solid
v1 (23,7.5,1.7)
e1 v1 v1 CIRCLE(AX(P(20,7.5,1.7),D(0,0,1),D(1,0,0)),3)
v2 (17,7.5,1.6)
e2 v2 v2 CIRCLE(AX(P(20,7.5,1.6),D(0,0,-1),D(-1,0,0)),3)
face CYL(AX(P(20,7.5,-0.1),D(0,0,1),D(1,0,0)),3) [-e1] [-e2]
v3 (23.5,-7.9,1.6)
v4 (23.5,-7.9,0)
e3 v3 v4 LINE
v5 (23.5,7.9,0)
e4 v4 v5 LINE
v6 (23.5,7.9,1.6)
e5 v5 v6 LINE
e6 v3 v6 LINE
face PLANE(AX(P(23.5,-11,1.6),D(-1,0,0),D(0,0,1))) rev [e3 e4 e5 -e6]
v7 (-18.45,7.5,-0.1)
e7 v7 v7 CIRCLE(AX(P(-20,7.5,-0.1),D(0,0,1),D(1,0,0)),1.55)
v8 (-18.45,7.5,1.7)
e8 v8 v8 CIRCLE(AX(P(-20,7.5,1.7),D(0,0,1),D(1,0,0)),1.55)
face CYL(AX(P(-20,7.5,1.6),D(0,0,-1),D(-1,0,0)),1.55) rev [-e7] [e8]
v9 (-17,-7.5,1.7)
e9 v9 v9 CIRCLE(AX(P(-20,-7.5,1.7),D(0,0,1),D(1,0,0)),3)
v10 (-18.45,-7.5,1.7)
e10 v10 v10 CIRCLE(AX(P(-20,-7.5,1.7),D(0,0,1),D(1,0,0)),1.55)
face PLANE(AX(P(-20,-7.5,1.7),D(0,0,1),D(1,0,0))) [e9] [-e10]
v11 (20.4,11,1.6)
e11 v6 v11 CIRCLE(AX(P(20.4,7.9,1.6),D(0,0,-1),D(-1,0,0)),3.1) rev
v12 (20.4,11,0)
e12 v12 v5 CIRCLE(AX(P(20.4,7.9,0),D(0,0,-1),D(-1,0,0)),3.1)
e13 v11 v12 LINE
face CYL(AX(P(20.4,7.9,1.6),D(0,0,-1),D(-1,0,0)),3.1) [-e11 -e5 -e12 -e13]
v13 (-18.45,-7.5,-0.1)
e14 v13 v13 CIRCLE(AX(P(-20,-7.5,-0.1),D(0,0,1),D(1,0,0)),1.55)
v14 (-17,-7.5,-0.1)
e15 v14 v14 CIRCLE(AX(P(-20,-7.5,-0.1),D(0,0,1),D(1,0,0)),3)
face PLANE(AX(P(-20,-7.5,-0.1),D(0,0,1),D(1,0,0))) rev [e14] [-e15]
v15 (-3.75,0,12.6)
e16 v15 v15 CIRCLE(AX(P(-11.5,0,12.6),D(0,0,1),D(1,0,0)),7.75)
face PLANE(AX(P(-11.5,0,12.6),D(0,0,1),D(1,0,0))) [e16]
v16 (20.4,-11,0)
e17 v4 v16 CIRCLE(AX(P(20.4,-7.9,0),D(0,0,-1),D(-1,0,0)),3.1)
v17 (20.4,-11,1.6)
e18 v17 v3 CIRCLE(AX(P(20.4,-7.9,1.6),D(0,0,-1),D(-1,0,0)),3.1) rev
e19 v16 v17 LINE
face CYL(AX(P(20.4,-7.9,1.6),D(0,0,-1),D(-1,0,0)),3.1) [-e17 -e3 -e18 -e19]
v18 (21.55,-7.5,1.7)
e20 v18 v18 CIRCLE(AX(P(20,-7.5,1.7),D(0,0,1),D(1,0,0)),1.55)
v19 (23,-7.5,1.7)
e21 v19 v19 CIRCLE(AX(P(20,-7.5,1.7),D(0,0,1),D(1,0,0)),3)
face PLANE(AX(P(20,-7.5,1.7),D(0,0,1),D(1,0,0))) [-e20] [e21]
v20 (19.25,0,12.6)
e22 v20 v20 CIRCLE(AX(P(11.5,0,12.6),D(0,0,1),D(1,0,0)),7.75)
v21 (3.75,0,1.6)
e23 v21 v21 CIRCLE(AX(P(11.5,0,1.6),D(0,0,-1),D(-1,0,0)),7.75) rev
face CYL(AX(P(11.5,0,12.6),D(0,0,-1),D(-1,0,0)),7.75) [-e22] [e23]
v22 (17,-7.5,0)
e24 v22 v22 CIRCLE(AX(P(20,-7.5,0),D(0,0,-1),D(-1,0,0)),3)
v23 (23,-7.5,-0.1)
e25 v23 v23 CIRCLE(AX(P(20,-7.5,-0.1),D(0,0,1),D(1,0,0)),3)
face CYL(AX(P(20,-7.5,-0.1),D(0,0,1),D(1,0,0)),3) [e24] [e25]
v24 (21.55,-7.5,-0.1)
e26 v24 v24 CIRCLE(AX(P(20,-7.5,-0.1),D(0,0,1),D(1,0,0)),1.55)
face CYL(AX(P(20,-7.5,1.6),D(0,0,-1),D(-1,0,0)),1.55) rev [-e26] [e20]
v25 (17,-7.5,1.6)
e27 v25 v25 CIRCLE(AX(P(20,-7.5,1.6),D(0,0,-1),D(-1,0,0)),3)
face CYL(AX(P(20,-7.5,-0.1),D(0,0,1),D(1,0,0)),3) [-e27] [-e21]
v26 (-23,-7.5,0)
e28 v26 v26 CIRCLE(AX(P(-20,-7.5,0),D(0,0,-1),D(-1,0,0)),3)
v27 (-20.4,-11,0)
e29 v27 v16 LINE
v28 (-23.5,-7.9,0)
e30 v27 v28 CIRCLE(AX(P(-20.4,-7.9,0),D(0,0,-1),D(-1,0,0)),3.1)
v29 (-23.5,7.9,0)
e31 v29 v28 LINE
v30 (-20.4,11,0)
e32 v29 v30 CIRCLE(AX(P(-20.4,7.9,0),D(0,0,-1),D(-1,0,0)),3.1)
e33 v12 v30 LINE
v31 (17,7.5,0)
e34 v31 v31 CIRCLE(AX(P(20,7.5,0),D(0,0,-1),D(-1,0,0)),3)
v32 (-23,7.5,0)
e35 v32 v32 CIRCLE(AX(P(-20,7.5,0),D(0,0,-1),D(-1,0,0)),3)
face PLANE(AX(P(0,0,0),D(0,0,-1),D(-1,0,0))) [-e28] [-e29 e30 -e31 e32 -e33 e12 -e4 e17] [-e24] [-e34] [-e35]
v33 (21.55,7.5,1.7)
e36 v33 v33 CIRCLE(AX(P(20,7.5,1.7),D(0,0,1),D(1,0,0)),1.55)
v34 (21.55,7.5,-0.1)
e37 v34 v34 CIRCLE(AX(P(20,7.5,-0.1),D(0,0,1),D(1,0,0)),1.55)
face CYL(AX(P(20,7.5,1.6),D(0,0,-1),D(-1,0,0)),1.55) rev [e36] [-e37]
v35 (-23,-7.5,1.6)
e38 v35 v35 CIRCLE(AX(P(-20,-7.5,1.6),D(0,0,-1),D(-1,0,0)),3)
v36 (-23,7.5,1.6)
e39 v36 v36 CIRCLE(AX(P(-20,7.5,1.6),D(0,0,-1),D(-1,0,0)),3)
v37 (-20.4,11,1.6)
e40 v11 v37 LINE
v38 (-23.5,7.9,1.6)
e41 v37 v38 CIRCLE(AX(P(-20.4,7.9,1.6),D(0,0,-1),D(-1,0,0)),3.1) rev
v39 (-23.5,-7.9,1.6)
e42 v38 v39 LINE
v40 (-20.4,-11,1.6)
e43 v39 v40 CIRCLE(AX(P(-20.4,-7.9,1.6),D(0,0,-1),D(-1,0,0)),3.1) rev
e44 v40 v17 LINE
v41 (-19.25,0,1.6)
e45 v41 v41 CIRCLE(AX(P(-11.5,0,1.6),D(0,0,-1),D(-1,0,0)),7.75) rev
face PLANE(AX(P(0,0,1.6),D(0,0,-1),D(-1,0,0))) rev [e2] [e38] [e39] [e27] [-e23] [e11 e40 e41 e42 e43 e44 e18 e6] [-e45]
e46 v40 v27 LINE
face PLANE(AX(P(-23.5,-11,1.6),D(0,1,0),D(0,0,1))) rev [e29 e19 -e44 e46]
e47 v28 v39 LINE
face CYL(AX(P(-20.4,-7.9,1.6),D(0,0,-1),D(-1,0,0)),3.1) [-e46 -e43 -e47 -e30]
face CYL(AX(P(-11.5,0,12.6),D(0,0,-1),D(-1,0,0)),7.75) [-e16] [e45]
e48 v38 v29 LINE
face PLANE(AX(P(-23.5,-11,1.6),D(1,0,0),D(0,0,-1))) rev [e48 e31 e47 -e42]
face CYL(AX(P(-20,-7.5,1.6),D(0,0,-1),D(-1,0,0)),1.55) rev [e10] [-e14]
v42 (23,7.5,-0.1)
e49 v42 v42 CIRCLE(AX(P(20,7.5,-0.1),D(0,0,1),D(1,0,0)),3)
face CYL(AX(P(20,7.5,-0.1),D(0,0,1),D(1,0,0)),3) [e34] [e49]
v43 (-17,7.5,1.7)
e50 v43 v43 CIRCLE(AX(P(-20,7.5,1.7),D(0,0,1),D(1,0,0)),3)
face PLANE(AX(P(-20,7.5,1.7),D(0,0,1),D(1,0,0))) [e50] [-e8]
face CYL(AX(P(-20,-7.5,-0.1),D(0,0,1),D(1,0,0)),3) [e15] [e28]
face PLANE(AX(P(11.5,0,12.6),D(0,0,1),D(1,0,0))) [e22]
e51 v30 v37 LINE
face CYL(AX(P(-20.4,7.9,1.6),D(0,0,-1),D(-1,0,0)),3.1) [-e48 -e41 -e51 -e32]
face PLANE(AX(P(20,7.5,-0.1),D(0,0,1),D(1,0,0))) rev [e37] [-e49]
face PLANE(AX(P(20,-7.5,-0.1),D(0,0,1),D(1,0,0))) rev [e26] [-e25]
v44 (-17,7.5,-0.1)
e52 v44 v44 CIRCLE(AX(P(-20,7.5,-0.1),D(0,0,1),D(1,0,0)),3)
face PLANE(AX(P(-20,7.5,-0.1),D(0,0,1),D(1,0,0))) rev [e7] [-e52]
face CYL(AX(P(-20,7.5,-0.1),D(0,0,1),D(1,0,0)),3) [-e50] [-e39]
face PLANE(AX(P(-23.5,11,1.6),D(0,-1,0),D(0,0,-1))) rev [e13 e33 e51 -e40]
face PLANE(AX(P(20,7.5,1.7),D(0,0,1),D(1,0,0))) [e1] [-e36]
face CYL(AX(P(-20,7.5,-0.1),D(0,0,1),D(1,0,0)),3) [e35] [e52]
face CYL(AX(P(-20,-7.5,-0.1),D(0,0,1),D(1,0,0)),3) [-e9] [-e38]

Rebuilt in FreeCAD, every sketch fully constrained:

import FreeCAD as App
import Part
import Sketcher


def edges_at(feature, points):
    """Names of the edges that pass closest to the given points."""
    edges = feature.Shape.Edges
    near = lambda p: min(range(len(edges)), key=lambda i: edges[i].distToShape(Part.Vertex(*p))[0])
    return sorted({f"Edge{near(p) + 1}" for p in points})

doc = App.newDocument("Part")
body = doc.addObject("PartDesign::Body", "Body")

# Sketch on XY plane
sketch1 = body.newObject("Sketcher::SketchObject", "Sketch")
sketch1.AttachmentSupport = (doc.getObject("XY_Plane"), [""])
sketch1.MapMode = "FlatFace"
sketch1.addGeometry([
    Part.LineSegment(App.Vector(-23.5, 11, 0), App.Vector(-23.5, -11, 0)),  # 0
    Part.LineSegment(App.Vector(-23.5, -11, 0), App.Vector(23.5, -11, 0)),  # 1
    Part.LineSegment(App.Vector(23.5, -11, 0), App.Vector(23.5, 11, 0)),  # 2
    Part.LineSegment(App.Vector(23.5, 11, 0), App.Vector(-23.5, 11, 0)),  # 3
    Part.Circle(App.Vector(-20, -7.5, 0), App.Vector(0, 0, 1), 1.55),  # 4
    Part.Circle(App.Vector(20, -7.5, 0), App.Vector(0, 0, 1), 1.55),  # 5
    Part.Circle(App.Vector(-20, 7.5, 0), App.Vector(0, 0, 1), 1.55),  # 6
    Part.Circle(App.Vector(20, 7.5, 0), App.Vector(0, 0, 1), 1.55),  # 7
], False)
sketch1.addConstraint([
    Sketcher.Constraint("Coincident", 0, 2, 1, 1),
    Sketcher.Constraint("Coincident", 1, 2, 2, 1),
    Sketcher.Constraint("Coincident", 2, 2, 3, 1),
    Sketcher.Constraint("Coincident", 3, 2, 0, 1),
    Sketcher.Constraint("Vertical", 0),
    Sketcher.Constraint("Horizontal", 1),
    Sketcher.Constraint("Vertical", 2),
    Sketcher.Constraint("Horizontal", 3),
    Sketcher.Constraint("Equal", 4, 5),
    Sketcher.Constraint("Equal", 5, 6),
    Sketcher.Constraint("Equal", 6, 7),
    Sketcher.Constraint("Symmetric", 5, 3, 6, 3, -1, 1),
    Sketcher.Constraint("Symmetric", 4, 3, 7, 3, -1, 1),
    Sketcher.Constraint("Symmetric", 0, 2, 2, 2, -1, 1),
    Sketcher.Constraint("Symmetric", 4, 3, 5, 3, -2),
    Sketcher.Constraint("Diameter", 4, 3.1),
    Sketcher.Constraint("DistanceX", 1, 1, 1, 2, 47.0),
    Sketcher.Constraint("DistanceY", 0, 2, 0, 1, 22.0),
    Sketcher.Constraint("DistanceX", 4, 3, -1, 1, 20.0),
    Sketcher.Constraint("DistanceY", 4, 3, 6, 3, 15.0),
])
pad1 = body.newObject("PartDesign::Pad", "Pad")
pad1.Profile = sketch1
pad1.Length = 1.6
doc.recompute()

fillet = body.newObject("PartDesign::Fillet", "Fillet")
fillet.Base = (pad1, edges_at(pad1, [
    (23.5, -11, 0.8),
    (-23.5, -11, 0.8),
    (-23.5, 11, 0.8),
    (23.5, 11, 0.8),
]))
fillet.Radius = 3.1

# Sketch on XY plane
sketch2 = body.newObject("Sketcher::SketchObject", "Sketch001")
sketch2.AttachmentSupport = (doc.getObject("XY_Plane"), [""])
sketch2.MapMode = "FlatFace"
sketch2.AttachmentOffset = App.Placement(App.Vector(0, 0, 1.6), App.Rotation())
sketch2.addGeometry([
    Part.Circle(App.Vector(-20, 7.5, 0), App.Vector(0, 0, 1), 3),  # 0
    Part.Circle(App.Vector(-20, 7.5, 0), App.Vector(0, 0, 1), 1.55),  # 1
    Part.Circle(App.Vector(-20, -7.5, 0), App.Vector(0, 0, 1), 3),  # 2
    Part.Circle(App.Vector(-20, -7.5, 0), App.Vector(0, 0, 1), 1.55),  # 3
    Part.Circle(App.Vector(20, 7.5, 0), App.Vector(0, 0, 1), 3),  # 4
    Part.Circle(App.Vector(20, 7.5, 0), App.Vector(0, 0, 1), 1.55),  # 5
    Part.Circle(App.Vector(20, -7.5, 0), App.Vector(0, 0, 1), 3),  # 6
    Part.Circle(App.Vector(20, -7.5, 0), App.Vector(0, 0, 1), 1.55),  # 7
], False)
sketch2.addConstraint([
    Sketcher.Constraint("Coincident", 1, 3, 0, 3),
    Sketcher.Constraint("Coincident", 3, 3, 2, 3),
    Sketcher.Constraint("Coincident", 5, 3, 4, 3),
    Sketcher.Constraint("Coincident", 7, 3, 6, 3),
    Sketcher.Constraint("Equal", 0, 2),
    Sketcher.Constraint("Equal", 1, 3),
    Sketcher.Constraint("Equal", 2, 4),
    Sketcher.Constraint("Equal", 3, 5),
    Sketcher.Constraint("Equal", 4, 6),
    Sketcher.Constraint("Equal", 5, 7),
    Sketcher.Constraint("Symmetric", 2, 3, 4, 3, -1, 1),
    Sketcher.Constraint("Symmetric", 0, 3, 6, 3, -1, 1),
    Sketcher.Constraint("Symmetric", 0, 3, 4, 3, -2),
    Sketcher.Constraint("Diameter", 0, 6.0),
    Sketcher.Constraint("Diameter", 1, 3.1),
    Sketcher.Constraint("DistanceX", 0, 3, -1, 1, 20.0),
    Sketcher.Constraint("DistanceY", 2, 3, 0, 3, 15.0),
])
pad2 = body.newObject("PartDesign::Pad", "Pad001")
pad2.Profile = sketch2
pad2.Type = "TwoLengths"
pad2.Length = 0.1
pad2.Length2 = 1.7

# Sketch on XY plane
sketch3 = body.newObject("Sketcher::SketchObject", "Sketch002")
sketch3.AttachmentSupport = (doc.getObject("XY_Plane"), [""])
sketch3.MapMode = "FlatFace"
sketch3.AttachmentOffset = App.Placement(App.Vector(0, 0, 1.6), App.Rotation())
sketch3.addGeometry([
    Part.Circle(App.Vector(11.5, 0, 0), App.Vector(0, 0, 1), 7.75),
    Part.Circle(App.Vector(-11.5, 0, 0), App.Vector(0, 0, 1), 7.75),
], False)
sketch3.addConstraint([
    Sketcher.Constraint("Equal", 0, 1),
    Sketcher.Constraint("Symmetric", 0, 3, 1, 3, -1, 1),
    Sketcher.Constraint("PointOnObject", 0, 3, -1),
    Sketcher.Constraint("Diameter", 0, 15.5),
    Sketcher.Constraint("DistanceX", 1, 3, 0, 3, 23.0),
])
pad3 = body.newObject("PartDesign::Pad", "Pad002")
pad3.Profile = sketch3
pad3.Length = 11

doc.recompute()
